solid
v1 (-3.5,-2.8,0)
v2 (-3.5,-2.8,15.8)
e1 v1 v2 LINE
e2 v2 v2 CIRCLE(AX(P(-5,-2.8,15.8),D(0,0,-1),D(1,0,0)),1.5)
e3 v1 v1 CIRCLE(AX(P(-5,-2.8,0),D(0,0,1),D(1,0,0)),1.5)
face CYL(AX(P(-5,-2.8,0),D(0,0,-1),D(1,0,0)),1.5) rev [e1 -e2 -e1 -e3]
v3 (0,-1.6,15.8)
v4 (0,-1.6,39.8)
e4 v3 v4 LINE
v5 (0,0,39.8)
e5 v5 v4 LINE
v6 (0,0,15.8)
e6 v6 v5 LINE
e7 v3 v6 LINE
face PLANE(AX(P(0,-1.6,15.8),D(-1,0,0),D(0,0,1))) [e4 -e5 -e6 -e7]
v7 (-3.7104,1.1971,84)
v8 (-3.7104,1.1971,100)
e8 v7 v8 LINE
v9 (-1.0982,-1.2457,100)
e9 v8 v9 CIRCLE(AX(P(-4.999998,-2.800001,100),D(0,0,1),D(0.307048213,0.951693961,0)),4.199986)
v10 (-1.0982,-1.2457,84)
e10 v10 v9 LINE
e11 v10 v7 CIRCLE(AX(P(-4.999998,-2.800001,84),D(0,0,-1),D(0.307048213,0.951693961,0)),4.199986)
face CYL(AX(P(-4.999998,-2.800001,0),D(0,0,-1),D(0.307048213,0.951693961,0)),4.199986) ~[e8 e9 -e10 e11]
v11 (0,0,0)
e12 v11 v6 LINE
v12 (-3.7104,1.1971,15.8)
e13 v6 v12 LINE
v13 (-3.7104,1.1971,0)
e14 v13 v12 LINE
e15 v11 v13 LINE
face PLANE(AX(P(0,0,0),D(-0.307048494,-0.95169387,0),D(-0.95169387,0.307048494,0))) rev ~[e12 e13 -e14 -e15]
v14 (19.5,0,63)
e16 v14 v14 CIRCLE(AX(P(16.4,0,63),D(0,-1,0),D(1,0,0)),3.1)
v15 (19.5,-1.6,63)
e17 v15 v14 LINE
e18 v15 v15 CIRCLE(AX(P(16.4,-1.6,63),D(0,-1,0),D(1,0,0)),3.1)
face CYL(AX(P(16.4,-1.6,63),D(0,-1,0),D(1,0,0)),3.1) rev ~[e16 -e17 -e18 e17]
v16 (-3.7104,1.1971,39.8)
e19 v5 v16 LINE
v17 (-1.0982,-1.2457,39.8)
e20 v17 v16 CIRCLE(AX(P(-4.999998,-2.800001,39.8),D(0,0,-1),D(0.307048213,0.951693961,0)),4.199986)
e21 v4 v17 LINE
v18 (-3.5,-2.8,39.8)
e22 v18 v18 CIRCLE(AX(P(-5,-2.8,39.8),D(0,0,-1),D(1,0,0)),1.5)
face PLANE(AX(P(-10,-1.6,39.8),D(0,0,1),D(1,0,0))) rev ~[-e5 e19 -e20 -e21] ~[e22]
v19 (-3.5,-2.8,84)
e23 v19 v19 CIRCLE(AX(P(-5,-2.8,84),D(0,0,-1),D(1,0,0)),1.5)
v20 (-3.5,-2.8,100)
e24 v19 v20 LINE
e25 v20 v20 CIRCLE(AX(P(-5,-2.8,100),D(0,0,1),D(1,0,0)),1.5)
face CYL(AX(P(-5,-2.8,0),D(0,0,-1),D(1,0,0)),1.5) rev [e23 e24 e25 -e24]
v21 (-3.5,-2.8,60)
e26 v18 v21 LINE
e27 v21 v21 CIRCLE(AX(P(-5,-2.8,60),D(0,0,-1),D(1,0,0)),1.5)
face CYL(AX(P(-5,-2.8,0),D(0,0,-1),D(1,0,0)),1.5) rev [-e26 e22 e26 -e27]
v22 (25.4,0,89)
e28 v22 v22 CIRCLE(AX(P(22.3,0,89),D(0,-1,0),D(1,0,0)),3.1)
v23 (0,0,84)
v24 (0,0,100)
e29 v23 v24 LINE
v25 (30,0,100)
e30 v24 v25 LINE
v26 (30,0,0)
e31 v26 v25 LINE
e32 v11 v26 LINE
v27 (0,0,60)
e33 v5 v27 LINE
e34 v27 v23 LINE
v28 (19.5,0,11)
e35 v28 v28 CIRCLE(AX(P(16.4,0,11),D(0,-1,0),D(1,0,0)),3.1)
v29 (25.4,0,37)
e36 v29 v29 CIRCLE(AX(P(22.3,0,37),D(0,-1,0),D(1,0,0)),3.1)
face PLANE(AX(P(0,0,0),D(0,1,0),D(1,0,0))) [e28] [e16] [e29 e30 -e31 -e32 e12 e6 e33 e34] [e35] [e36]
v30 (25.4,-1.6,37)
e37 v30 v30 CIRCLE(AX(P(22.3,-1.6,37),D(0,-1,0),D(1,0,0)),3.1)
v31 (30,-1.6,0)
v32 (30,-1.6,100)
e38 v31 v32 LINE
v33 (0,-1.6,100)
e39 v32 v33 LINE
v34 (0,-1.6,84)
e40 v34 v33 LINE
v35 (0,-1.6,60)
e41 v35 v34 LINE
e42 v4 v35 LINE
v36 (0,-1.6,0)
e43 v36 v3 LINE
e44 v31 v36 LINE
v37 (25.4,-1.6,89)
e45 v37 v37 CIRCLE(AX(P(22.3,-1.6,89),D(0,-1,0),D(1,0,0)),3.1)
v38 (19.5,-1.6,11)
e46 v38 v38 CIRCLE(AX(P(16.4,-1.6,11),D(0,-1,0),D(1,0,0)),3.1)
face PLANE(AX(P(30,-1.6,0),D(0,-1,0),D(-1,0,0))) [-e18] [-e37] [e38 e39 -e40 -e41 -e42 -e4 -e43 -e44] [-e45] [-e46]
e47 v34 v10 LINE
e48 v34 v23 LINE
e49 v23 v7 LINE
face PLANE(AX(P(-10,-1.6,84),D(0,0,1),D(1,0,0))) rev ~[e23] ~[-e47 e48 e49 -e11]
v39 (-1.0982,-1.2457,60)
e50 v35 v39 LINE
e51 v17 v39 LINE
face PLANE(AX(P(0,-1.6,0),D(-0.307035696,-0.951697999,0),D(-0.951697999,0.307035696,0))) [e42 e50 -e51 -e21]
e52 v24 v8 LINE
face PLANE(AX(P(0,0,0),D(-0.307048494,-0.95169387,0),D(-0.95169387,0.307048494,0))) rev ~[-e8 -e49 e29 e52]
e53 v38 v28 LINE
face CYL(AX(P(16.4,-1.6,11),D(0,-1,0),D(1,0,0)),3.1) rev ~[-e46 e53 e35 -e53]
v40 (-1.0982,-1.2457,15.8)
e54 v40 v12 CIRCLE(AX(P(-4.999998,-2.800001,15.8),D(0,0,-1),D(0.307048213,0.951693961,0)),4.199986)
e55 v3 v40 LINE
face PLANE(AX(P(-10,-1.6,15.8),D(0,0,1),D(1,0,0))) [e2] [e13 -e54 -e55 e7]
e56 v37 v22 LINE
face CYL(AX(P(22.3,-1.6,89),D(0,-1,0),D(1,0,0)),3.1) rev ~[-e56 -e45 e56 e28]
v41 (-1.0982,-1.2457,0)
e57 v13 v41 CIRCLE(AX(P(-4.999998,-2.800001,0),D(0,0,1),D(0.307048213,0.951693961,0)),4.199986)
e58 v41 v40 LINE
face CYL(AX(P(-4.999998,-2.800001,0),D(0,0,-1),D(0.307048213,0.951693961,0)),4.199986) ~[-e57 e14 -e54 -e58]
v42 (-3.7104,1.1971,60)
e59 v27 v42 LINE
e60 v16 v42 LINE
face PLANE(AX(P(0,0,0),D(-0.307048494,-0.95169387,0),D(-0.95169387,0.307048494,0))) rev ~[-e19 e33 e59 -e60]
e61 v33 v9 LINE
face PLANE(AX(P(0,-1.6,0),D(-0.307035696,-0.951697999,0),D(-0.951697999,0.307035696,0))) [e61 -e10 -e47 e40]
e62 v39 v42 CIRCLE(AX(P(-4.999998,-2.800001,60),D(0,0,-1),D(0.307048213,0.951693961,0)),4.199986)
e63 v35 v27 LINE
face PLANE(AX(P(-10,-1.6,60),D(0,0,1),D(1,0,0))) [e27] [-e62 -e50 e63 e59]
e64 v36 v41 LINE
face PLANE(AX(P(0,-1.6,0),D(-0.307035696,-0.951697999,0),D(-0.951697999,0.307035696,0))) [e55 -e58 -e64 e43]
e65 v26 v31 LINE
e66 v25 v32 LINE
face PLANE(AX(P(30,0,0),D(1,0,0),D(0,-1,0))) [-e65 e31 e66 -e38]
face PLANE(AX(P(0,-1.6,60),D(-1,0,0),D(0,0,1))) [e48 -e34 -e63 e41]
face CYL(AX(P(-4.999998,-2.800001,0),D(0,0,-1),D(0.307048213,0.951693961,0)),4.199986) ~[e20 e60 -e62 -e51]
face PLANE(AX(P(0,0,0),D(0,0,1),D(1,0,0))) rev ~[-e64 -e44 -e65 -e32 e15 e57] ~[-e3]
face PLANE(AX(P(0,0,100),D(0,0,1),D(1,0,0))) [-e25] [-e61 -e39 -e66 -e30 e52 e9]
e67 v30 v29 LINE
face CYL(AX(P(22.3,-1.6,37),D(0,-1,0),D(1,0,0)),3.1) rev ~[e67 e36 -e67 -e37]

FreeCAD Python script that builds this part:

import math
import FreeCAD as App
import Part
import Sketcher

doc = App.newDocument("Part")
body = doc.addObject("PartDesign::Body", "Body")

# Sketch on XY plane
sketch1 = body.newObject("Sketcher::SketchObject", "Sketch")
sketch1.AttachmentSupport = (doc.getObject("XY_Plane"), [""])
sketch1.MapMode = "FlatFace"
sketch1.addGeometry([
    Part.LineSegment(App.Vector(30, 0, 0), App.Vector(0, 0, 0)),  # 0
    Part.LineSegment(App.Vector(0, 0, 0), App.Vector(-3.7, 1.2, 0)),  # 1
    Part.ArcOfCircle(Part.Circle(App.Vector(-5, -2.8, 0), App.Vector(0, 0, 1), 4.2), math.radians(72), math.radians(382)),  # 2
    Part.LineSegment(App.Vector(-1.1, -1.2, 0), App.Vector(0, -1.6, 0)),  # 3
    Part.LineSegment(App.Vector(0, -1.6, 0), App.Vector(30, -1.6, 0)),  # 4
    Part.LineSegment(App.Vector(30, -1.6, 0), App.Vector(30, 0, 0)),  # 5
    Part.Circle(App.Vector(-5, -2.8, 0), App.Vector(0, 0, 1), 1.5),  # 6
], False)
sketch1.addConstraint([
    Sketcher.Constraint("Coincident", 0, 2, 1, 1),
    Sketcher.Constraint("Tangent", 1, 2, 2, 1),
    Sketcher.Constraint("Coincident", 2, 2, 3, 1),
    Sketcher.Constraint("Coincident", 3, 2, 4, 1),
    Sketcher.Constraint("Coincident", 4, 2, 5, 1),
    Sketcher.Constraint("Coincident", 5, 2, 0, 1),
    Sketcher.Constraint("Horizontal", 0),
    Sketcher.Constraint("Horizontal", 4),
    Sketcher.Constraint("Vertical", 5),
    Sketcher.Constraint("Coincident", 0, 2, -1, 1),
    Sketcher.Constraint("Coincident", 6, 3, 2, 3),
    Sketcher.Constraint("PointOnObject", 3, 2, -2),
    Sketcher.Constraint("Parallel", 1, 3),
    Sketcher.Constraint("Diameter", 6, 3.0),
    Sketcher.Constraint("Radius", 2, 4.2),
    Sketcher.Constraint("DistanceX", 0, 2, 0, 1, 30.0),
    Sketcher.Constraint("DistanceY", 5, 1, 5, 2, 1.6),
    Sketcher.Constraint("DistanceX", 2, 3, 4, 2, 35.0),
    Sketcher.Constraint("DistanceY", 2, 3, -1, 1, 2.8),
])
pad1 = body.newObject("PartDesign::Pad", "Pad")
pad1.Profile = sketch1
pad1.Length = 100

# Sketch on XZ plane
sketch2 = body.newObject("Sketcher::SketchObject", "Sketch001")
sketch2.AttachmentSupport = (doc.getObject("XZ_Plane"), [""])
sketch2.MapMode = "FlatFace"
sketch2.AttachmentOffset = App.Placement(App.Vector(0, 0, 1.6), App.Rotation())
sketch2.addGeometry([
    Part.LineSegment(App.Vector(0, 15.8, 0), App.Vector(0, 39.8, 0)),  # 0
    Part.LineSegment(App.Vector(0, 39.8, 0), App.Vector(-10, 39.8, 0)),  # 1
    Part.LineSegment(App.Vector(-10, 39.8, 0), App.Vector(-10, 15.8, 0)),  # 2
    Part.LineSegment(App.Vector(-10, 15.8, 0), App.Vector(0, 15.8, 0)),  # 3
    Part.LineSegment(App.Vector(0, 84, 0), App.Vector(-10, 84, 0)),  # 4
    Part.LineSegment(App.Vector(-10, 84, 0), App.Vector(-10, 60, 0)),  # 5
    Part.LineSegment(App.Vector(-10, 60, 0), App.Vector(0, 60, 0)),  # 6
    Part.LineSegment(App.Vector(0, 60, 0), App.Vector(0, 84, 0)),  # 7
    Part.Circle(App.Vector(22.3, 89, 0), App.Vector(0, 0, 1), 3.1),  # 8
    Part.Circle(App.Vector(16.4, 63, 0), App.Vector(0, 0, 1), 3.1),  # 9
    Part.Circle(App.Vector(22.3, 37, 0), App.Vector(0, 0, 1), 3.1),  # 10
    Part.Circle(App.Vector(16.4, 11, 0), App.Vector(0, 0, 1), 3.1),  # 11
], False)
sketch2.addConstraint([
    Sketcher.Constraint("Coincident", 0, 2, 1, 1),
    Sketcher.Constraint("Coincident", 1, 2, 2, 1),
    Sketcher.Constraint("Coincident", 2, 2, 3, 1),
    Sketcher.Constraint("Coincident", 3, 2, 0, 1),
    Sketcher.Constraint("Coincident", 4, 2, 5, 1),
    Sketcher.Constraint("Coincident", 5, 2, 6, 1),
    Sketcher.Constraint("Coincident", 6, 2, 7, 1),
    Sketcher.Constraint("Coincident", 7, 2, 4, 1),
    Sketcher.Constraint("Vertical", 0),
    Sketcher.Constraint("Horizontal", 1),
    Sketcher.Constraint("Vertical", 2),
    Sketcher.Constraint("Horizontal", 3),
    Sketcher.Constraint("Horizontal", 4),
    Sketcher.Constraint("Vertical", 5),
    Sketcher.Constraint("Horizontal", 6),
    Sketcher.Constraint("Vertical", 7),
    Sketcher.Constraint("Equal", 8, 9),
    Sketcher.Constraint("Equal", 9, 10),
    Sketcher.Constraint("Equal", 10, 11),
    Sketcher.Constraint("PointOnObject", 0, 2, -2),
    Sketcher.Constraint("PointOnObject", 6, 2, -2),
    Sketcher.Constraint("Vertical", 8, 3, 10, 3),
    Sketcher.Constraint("Vertical", 9, 3, 11, 3),
    Sketcher.Constraint("Vertical", 2, 2, 4, 2),
    Sketcher.Constraint("Equal", 2, 5),
    Sketcher.Constraint("Diameter", 8, 6.2),
    Sketcher.Constraint("DistanceX", 1, 2, 1, 1, 10.0),
    Sketcher.Constraint("DistanceY", 0, 1, 0, 2, 24.0),
    Sketcher.Constraint("DistanceY", -1, 1, 10, 3, 37.0),
    Sketcher.Constraint("DistanceY", -1, 1, 11, 3, 11.0),
    Sketcher.Constraint("DistanceY", -1, 1, 8, 3, 89.0),
    Sketcher.Constraint("DistanceY", -1, 1, 9, 3, 63.0),
    Sketcher.Constraint("DistanceY", -1, 1, 4, 2, 84.0),
    Sketcher.Constraint("DistanceX", -1, 1, 8, 3, 22.3),
    Sketcher.Constraint("DistanceX", -1, 1, 9, 3, 16.4),
    Sketcher.Constraint("DistanceY", -1, 1, 0, 2, 39.8),
])
pocket1 = body.newObject("PartDesign::Pocket", "Pocket")
pocket1.Profile = sketch2
pocket1.Type = "ThroughAll"
pocket1.Midplane = True

doc.recompute()
